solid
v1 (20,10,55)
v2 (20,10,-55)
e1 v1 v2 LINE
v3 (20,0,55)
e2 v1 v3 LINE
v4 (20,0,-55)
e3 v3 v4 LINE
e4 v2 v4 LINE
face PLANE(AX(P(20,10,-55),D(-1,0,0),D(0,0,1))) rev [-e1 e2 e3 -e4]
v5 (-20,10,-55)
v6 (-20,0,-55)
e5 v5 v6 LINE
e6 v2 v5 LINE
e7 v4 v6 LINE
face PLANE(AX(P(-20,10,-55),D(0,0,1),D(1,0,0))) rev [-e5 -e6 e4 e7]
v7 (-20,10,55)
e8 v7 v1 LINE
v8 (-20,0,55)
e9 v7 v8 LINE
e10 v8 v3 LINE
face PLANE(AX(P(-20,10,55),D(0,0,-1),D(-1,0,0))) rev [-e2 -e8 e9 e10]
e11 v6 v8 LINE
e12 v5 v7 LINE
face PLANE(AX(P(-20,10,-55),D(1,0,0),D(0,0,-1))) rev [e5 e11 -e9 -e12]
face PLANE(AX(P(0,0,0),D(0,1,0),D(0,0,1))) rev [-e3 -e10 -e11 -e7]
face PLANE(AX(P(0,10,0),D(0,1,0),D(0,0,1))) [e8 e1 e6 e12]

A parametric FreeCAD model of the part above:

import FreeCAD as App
import Part
import Sketcher

doc = App.newDocument("Part")
body = doc.addObject("PartDesign::Body", "Body")

# Sketch on XZ plane
sketch1 = body.newObject("Sketcher::SketchObject", "Sketch")
sketch1.AttachmentSupport = (doc.getObject("XZ_Plane"), [""])
sketch1.MapMode = "FlatFace"
sketch1.addGeometry([
    Part.LineSegment(App.Vector(-20, -55, 0), App.Vector(-20, 55, 0)),
    Part.LineSegment(App.Vector(-20, 55, 0), App.Vector(20, 55, 0)),
    Part.LineSegment(App.Vector(20, 55, 0), App.Vector(20, -55, 0)),
    Part.LineSegment(App.Vector(20, -55, 0), App.Vector(-20, -55, 0)),
], False)
sketch1.addConstraint([
    Sketcher.Constraint("Coincident", 0, 2, 1, 1),
    Sketcher.Constraint("Coincident", 1, 2, 2, 1),
    Sketcher.Constraint("Coincident", 2, 2, 3, 1),
    Sketcher.Constraint("Coincident", 3, 2, 0, 1),
    Sketcher.Constraint("Vertical", 0),
    Sketcher.Constraint("Horizontal", 1),
    Sketcher.Constraint("Vertical", 2),
    Sketcher.Constraint("Horizontal", 3),
    Sketcher.Constraint("Symmetric", 0, 2, 2, 2, -1, 1),
    Sketcher.Constraint("DistanceX", 1, 1, 1, 2, 40.0),
    Sketcher.Constraint("DistanceY", 0, 1, 0, 2, 110.0),
])
pad1 = body.newObject("PartDesign::Pad", "Pad")
pad1.Profile = sketch1
pad1.Length = 10
pad1.Reversed = True

doc.recompute()
